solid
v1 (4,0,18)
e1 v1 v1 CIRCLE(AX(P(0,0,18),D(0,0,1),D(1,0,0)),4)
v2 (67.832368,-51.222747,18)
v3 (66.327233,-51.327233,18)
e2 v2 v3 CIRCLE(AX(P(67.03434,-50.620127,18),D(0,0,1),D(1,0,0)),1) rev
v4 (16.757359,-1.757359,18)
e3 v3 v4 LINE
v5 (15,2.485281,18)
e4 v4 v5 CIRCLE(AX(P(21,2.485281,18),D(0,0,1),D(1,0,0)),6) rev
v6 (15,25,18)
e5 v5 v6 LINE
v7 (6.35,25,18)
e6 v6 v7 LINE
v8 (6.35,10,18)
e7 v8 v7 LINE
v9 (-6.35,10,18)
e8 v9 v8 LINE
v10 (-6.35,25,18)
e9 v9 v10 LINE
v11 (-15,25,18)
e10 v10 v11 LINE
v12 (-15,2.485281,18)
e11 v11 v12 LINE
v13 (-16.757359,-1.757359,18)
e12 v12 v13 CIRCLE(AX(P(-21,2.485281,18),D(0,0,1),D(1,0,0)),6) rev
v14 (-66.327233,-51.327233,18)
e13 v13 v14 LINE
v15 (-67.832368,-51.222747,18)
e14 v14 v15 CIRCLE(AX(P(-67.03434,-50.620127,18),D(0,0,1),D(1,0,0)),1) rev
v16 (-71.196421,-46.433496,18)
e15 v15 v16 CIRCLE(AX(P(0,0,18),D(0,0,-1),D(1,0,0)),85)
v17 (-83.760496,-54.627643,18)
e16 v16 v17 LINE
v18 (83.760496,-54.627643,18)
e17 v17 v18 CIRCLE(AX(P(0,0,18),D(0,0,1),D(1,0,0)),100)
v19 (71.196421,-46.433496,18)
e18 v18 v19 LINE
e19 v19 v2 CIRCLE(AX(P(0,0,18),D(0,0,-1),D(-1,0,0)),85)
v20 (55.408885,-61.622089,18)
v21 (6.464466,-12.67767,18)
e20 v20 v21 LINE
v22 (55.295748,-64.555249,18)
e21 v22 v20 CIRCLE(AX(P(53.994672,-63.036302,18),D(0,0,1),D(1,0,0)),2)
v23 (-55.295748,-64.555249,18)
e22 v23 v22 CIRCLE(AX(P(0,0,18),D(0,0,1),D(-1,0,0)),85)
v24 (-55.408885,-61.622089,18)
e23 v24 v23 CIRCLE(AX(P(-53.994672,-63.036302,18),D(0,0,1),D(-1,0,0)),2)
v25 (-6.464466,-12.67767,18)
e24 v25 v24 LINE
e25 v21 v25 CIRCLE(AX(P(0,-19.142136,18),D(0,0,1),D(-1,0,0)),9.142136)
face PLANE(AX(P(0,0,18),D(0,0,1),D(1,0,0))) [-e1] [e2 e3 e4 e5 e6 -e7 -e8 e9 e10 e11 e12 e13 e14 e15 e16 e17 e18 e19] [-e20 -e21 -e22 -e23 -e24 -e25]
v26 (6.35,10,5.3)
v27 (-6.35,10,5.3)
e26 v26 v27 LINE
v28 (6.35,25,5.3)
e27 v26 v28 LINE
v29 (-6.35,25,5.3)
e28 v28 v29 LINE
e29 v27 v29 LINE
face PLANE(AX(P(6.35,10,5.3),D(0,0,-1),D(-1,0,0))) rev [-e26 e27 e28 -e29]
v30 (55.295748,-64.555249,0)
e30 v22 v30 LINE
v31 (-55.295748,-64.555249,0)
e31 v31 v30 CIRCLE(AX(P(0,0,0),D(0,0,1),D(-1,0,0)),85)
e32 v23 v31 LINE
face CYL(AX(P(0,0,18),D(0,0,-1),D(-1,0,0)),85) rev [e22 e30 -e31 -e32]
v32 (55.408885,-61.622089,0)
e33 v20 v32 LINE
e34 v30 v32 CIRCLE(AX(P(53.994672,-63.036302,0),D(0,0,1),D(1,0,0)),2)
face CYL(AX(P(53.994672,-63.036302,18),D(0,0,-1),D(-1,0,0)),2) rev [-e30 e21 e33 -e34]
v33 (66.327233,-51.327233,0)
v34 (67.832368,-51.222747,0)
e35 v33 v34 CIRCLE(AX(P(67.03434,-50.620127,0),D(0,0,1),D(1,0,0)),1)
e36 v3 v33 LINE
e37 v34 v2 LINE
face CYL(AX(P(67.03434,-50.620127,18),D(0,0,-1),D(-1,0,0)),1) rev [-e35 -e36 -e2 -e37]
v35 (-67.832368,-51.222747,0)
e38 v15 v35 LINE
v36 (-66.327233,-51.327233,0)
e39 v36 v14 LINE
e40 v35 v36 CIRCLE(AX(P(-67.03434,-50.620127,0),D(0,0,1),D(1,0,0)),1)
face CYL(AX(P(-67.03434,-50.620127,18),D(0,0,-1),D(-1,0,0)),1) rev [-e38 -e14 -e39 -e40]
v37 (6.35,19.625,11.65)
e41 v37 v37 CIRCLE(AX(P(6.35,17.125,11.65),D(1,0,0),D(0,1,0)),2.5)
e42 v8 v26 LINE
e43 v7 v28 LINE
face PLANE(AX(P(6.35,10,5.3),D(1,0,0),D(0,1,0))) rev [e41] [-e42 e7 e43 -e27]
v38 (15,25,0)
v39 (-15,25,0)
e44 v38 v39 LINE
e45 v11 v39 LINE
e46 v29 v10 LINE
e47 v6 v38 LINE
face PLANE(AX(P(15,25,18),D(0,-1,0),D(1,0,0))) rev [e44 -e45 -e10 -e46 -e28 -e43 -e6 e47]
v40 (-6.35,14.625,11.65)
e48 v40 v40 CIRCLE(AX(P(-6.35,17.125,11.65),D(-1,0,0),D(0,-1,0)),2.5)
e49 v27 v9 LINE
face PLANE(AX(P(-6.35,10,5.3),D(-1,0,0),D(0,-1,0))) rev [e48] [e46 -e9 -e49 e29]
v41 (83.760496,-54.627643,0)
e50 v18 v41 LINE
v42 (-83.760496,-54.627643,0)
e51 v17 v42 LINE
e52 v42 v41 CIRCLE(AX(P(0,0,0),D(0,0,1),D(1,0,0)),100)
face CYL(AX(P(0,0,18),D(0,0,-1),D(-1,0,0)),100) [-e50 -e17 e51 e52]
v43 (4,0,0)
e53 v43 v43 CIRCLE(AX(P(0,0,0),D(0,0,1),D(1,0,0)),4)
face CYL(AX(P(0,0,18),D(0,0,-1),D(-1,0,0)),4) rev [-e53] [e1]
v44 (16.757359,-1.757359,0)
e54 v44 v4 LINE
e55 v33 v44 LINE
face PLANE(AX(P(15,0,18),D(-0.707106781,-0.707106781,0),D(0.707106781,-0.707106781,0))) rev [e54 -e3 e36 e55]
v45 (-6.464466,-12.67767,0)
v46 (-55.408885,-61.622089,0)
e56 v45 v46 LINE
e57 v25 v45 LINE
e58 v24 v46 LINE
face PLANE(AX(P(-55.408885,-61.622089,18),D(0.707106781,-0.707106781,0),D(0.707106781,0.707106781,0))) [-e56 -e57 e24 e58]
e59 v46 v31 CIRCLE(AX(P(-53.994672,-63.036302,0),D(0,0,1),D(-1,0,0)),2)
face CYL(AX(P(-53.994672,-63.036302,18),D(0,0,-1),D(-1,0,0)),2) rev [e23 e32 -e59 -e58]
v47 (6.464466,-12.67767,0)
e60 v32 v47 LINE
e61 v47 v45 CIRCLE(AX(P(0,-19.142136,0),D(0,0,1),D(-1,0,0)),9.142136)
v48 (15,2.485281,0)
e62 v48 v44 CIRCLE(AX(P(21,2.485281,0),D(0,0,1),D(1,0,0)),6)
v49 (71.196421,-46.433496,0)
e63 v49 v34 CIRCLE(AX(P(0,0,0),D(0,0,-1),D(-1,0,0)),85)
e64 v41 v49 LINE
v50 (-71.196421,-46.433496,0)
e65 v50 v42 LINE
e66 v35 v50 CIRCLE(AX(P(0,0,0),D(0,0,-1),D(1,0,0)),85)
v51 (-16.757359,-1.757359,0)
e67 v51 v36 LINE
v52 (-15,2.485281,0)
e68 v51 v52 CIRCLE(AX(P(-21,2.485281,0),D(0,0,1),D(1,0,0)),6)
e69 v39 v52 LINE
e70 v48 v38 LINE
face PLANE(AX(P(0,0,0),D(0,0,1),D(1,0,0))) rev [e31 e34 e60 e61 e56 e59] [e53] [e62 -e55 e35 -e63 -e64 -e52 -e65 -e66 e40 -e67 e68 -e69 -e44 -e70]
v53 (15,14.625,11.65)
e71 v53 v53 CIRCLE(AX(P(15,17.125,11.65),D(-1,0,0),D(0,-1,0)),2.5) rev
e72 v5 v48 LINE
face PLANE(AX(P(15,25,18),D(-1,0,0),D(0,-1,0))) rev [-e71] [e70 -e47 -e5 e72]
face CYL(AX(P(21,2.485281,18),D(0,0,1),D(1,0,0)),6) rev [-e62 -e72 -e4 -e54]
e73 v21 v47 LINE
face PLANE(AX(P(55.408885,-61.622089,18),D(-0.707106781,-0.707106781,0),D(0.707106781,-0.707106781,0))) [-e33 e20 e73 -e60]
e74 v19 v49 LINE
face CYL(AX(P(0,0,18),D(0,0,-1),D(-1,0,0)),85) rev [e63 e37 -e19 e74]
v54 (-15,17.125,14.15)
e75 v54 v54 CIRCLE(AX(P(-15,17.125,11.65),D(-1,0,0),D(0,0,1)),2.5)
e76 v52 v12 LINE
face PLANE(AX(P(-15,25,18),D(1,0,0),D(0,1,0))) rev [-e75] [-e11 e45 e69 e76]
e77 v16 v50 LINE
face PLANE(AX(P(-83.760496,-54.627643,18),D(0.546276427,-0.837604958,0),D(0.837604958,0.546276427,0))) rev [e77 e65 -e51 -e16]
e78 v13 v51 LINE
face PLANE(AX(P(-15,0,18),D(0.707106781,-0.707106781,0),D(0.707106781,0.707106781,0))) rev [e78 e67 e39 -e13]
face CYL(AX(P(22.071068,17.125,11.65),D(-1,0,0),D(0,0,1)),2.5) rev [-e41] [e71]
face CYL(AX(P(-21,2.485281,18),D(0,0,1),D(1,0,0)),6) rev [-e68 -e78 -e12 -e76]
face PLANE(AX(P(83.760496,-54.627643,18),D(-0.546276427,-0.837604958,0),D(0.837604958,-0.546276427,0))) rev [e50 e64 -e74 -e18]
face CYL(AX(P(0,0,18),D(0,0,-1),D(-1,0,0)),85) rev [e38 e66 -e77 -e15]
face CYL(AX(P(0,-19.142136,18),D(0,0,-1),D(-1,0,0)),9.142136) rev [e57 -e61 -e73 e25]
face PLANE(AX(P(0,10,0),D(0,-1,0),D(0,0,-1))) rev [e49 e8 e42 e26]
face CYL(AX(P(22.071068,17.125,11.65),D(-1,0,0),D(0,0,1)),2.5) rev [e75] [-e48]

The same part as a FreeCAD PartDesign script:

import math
import FreeCAD as App
import Part
import Sketcher
from FreeCAD import Vector
Q = App.Units.Quantity


def edges_at(feature, points):
    """Names of the edges that pass closest to the given points."""
    edges = feature.Shape.Edges
    near = lambda p: min(range(len(edges)), key=lambda i: edges[i].distToShape(Part.Vertex(*p))[0])
    return sorted({f"Edge{near(p) + 1}" for p in points})

doc = App.newDocument("Part")
params = doc.addObject("Spreadsheet::Sheet", "Params")
for row, (alias, value) in enumerate([
    ("sketch1_diameter", "8 mm"),
    ("sketch1_radius", "85 mm"),
    ("sketch1_radius2", "100 mm"),
    ("sketch1_radius3", "2 mm"),
    ("sketch1_width", "30 mm"),
    ("pad1_length", "18 mm"),
    ("sketch2_width", "12.7 mm"),
    ("pocket1_length", "15 mm"),
    ("sketch3_diameter", "5 mm"),
    ("pocket2_length", "30 mm"),
    ("fillet_radius", "1 mm"),
    ("fillet2_radius", "6 mm"),
], start=1):
    params.set(f"A{row}", alias)
    params.set(f"B{row}", "=" + value)
    params.setAlias(f"B{row}", alias)

body = doc.addObject("PartDesign::Body", "Body")

# Sketch on XY plane
sketch1 = body.newObject("Sketcher::SketchObject", "Sketch")
sketch1.AttachmentSupport = (doc.getObject("XY_Plane"), [""])
sketch1.MapMode = "FlatFace"
sketch1.addGeometry([
    Part.LineSegment(Vector(15, 25, 0), Vector(-15, 25, 0)),  # 0
    Part.LineSegment(Vector(-15, 25, 0), Vector(-15, 0, 0)),  # 1
    Part.LineSegment(Vector(-15, 0, 0), Vector(-67.1, -52.1, 0)),  # 2
    Part.ArcOfCircle(Part.Circle(Vector(0, 0, 0), Vector(0, 0, 1), 85), math.radians(-146.89), math.radians(-142.17)),  # 3
    Part.LineSegment(Vector(-71.2, -46.4, 0), Vector(-83.8, -54.6, 0)),  # 4
    Part.ArcOfCircle(Part.Circle(Vector(0, 0, 0), Vector(0, 0, 1), 100), math.radians(-147), math.radians(-33)),  # 5
    Part.LineSegment(Vector(83.8, -54.6, 0), Vector(71.2, -46.4, 0)),  # 6
    Part.ArcOfCircle(Part.Circle(Vector(0, 0, 0), Vector(0, 0, 1), 85), math.radians(-37.83), math.radians(-33.11)),  # 7
    Part.LineSegment(Vector(67.1, -52.1, 0), Vector(15, 0, 0)),  # 8
    Part.LineSegment(Vector(15, 0, 0), Vector(15, 25, 0)),  # 9
    Part.ArcOfCircle(Part.Circle(Vector(-54, -63, 0), Vector(0, 0, 1), 2), math.radians(135), math.radians(229)),  # 10
    Part.LineSegment(Vector(-55.4, -61.6, 0), Vector(-6.5, -12.7, 0)),  # 11
    Part.ArcOfCircle(Part.Circle(Vector(0, -19.1, 0), Vector(0, 0, 1), 9.1), math.radians(45), math.radians(135)),  # 12
    Part.LineSegment(Vector(6.5, -12.7, 0), Vector(55.4, -61.6, 0)),  # 13
    Part.ArcOfCircle(Part.Circle(Vector(54, -63, 0), Vector(0, 0, 1), 2), math.radians(-49), math.radians(45)),  # 14
    Part.ArcOfCircle(Part.Circle(Vector(0, 0, 0), Vector(0, 0, 1), 85), math.radians(-131), math.radians(-49)),  # 15
    Part.Circle(Vector(0, 0, 0), Vector(0, 0, 1), 4),  # 16
], False)
sketch1.addConstraint([
    Sketcher.Constraint("Coincident", 0, 2, 1, 1),
    Sketcher.Constraint("Coincident", 1, 2, 2, 1),
    Sketcher.Constraint("Coincident", 2, 2, 3, 2),
    Sketcher.Constraint("Coincident", 3, 1, 4, 1),
    Sketcher.Constraint("Coincident", 4, 2, 5, 1),
    Sketcher.Constraint("Coincident", 5, 2, 6, 1),
    Sketcher.Constraint("Coincident", 6, 2, 7, 2),
    Sketcher.Constraint("Coincident", 7, 1, 8, 1),
    Sketcher.Constraint("Coincident", 8, 2, 9, 1),
    Sketcher.Constraint("Coincident", 9, 2, 0, 1),
    Sketcher.Constraint("Tangent", 10, 1, 11, 1),
    Sketcher.Constraint("Tangent", 11, 2, 12, 2),
    Sketcher.Constraint("Tangent", 12, 1, 13, 1),
    Sketcher.Constraint("Tangent", 13, 2, 14, 2),
    Sketcher.Constraint("Tangent", 14, 1, 15, 2),
    Sketcher.Constraint("Tangent", 15, 1, 10, 2),
    Sketcher.Constraint("Horizontal", 0),
    Sketcher.Constraint("Vertical", 1),
    Sketcher.Constraint("Vertical", 9),
    Sketcher.Constraint("Coincident", 3, 3, -1, 1),
    Sketcher.Constraint("Coincident", 5, 3, -1, 1),
    Sketcher.Constraint("Coincident", 7, 3, -1, 1),
    Sketcher.Constraint("Coincident", 15, 3, -1, 1),
    Sketcher.Constraint("Coincident", 16, 3, -1, 1),
    Sketcher.Constraint("Equal", 3, 7),
    Sketcher.Constraint("Equal", 10, 14),
    Sketcher.Constraint("Equal", 7, 15),
    Sketcher.Constraint("Symmetric", 1, 2, 8, 2, -1, 1),
    Sketcher.Constraint("Symmetric", 11, 2, 12, 1, -2),
    Sketcher.Constraint("PointOnObject", 1, 2, -1),
    Sketcher.Constraint("Perpendicular", 2, 8),
    Sketcher.Constraint("Perpendicular", 8, 11),
    Sketcher.Constraint("Perpendicular", 11, 13),
    Sketcher.Constraint("Horizontal", 4, 2, 5, 2),
    Sketcher.Constraint("Horizontal", 3, 1, 6, 2),
    Sketcher.Constraint("Diameter", 16, Q("8 mm")),
    Sketcher.Constraint("Radius", 3, Q("85 mm")),
    Sketcher.Constraint("Radius", 5, Q("100 mm")),
    Sketcher.Constraint("Radius", 10, Q("2 mm")),
    Sketcher.Constraint("DistanceX", 0, 2, 0, 1, Q("30 mm")),
    Sketcher.Constraint("DistanceY", 1, 2, 1, 1, Q("25 mm")),
    Sketcher.Constraint("Radius", 12, Q("9.142136 mm")),
    Sketcher.Constraint("DistanceY", 10, 3, 2, 2, Q("10.902 mm")),
    Sketcher.Constraint("DistanceX", 3, 1, -1, 1, Q("71.196421 mm")),
    Sketcher.Constraint("DistanceY", 4, 2, 2, 2, Q("2.493341 mm")),
])
sketch1.setExpression("Constraints[35]", "Params.sketch1_diameter")
sketch1.setExpression("Constraints[36]", "Params.sketch1_radius")
sketch1.setExpression("Constraints[37]", "Params.sketch1_radius2")
sketch1.setExpression("Constraints[38]", "Params.sketch1_radius3")
sketch1.setExpression("Constraints[39]", "Params.sketch1_width")
pad1 = body.newObject("PartDesign::Pad", "Pad")
pad1.Profile = sketch1
pad1.setExpression("Length", "Params.pad1_length")

# Sketch on XZ plane
sketch2 = body.newObject("Sketcher::SketchObject", "Sketch001")
sketch2.AttachmentSupport = (doc.getObject("XZ_Plane"), [""])
sketch2.MapMode = "FlatFace"
sketch2.AttachmentOffset = App.Placement(Vector(0, 0, -25), App.Rotation())
sketch2.addGeometry([
    Part.LineSegment(Vector(-6, 5, 0), Vector(-6, 18, 0)),
    Part.LineSegment(Vector(-6, 18, 0), Vector(6, 18, 0)),
    Part.LineSegment(Vector(6, 18, 0), Vector(6, 5, 0)),
    Part.LineSegment(Vector(6, 5, 0), Vector(-6, 5, 0)),
], False)
sketch2.addConstraint([
    Sketcher.Constraint("Coincident", 0, 2, 1, 1),
    Sketcher.Constraint("Coincident", 1, 2, 2, 1),
    Sketcher.Constraint("Coincident", 2, 2, 3, 1),
    Sketcher.Constraint("Coincident", 3, 2, 0, 1),
    Sketcher.Constraint("Vertical", 0),
    Sketcher.Constraint("Horizontal", 1),
    Sketcher.Constraint("Vertical", 2),
    Sketcher.Constraint("Horizontal", 3),
    Sketcher.Constraint("Equal", 3, 0),
    Sketcher.Constraint("DistanceX", 1, 1, 1, 2, Q("12.7 mm")),
    Sketcher.Constraint("DistanceY", -1, 1, 0, 2, Q("18 mm")),
    Sketcher.Constraint("DistanceX", 0, 2, -1, 1, Q("6.35 mm")),
])
sketch2.setExpression("Constraints[9]", "Params.sketch2_width")
pocket1 = body.newObject("PartDesign::Pocket", "Pocket")
pocket1.Profile = sketch2
pocket1.setExpression("Length", "Params.pocket1_length")
pocket1.Reversed = True

# Sketch on YZ plane
sketch3 = body.newObject("Sketcher::SketchObject", "Sketch002")
sketch3.AttachmentSupport = (doc.getObject("YZ_Plane"), [""])
sketch3.MapMode = "FlatFace"
sketch3.AttachmentOffset = App.Placement(Vector(0, 0, -15), App.Rotation())
sketch3.addGeometry(Part.Circle(Vector(17.1, 11.7, 0), Vector(0, 0, 1), 2.5), False)
sketch3.addConstraint([
    Sketcher.Constraint("Diameter", 0, Q("5 mm")),
    Sketcher.Constraint("DistanceY", -1, 1, 0, 3, Q("11.65 mm")),
    Sketcher.Constraint("DistanceX", -1, 1, 0, 3, Q("17.125 mm")),
])
sketch3.setExpression("Constraints[0]", "Params.sketch3_diameter")
pocket2 = body.newObject("PartDesign::Pocket", "Pocket001")
pocket2.Profile = sketch3
pocket2.setExpression("Length", "Params.pocket2_length")
pocket2.Reversed = True
doc.recompute()

fillet = body.newObject("PartDesign::Fillet", "Fillet")
fillet.Base = (pocket2, edges_at(pocket2, [(67.134, -52.134, 9), (-67.134, -52.134, 9)]))
fillet.setExpression("Radius", "Params.fillet_radius")
doc.recompute()

fillet2 = body.newObject("PartDesign::Fillet", "Fillet001")
fillet2.Base = (fillet, edges_at(fillet, [(15, 0, 9), (-15, 0, 9)]))
fillet2.setExpression("Radius", "Params.fillet2_radius")

doc.recompute()
